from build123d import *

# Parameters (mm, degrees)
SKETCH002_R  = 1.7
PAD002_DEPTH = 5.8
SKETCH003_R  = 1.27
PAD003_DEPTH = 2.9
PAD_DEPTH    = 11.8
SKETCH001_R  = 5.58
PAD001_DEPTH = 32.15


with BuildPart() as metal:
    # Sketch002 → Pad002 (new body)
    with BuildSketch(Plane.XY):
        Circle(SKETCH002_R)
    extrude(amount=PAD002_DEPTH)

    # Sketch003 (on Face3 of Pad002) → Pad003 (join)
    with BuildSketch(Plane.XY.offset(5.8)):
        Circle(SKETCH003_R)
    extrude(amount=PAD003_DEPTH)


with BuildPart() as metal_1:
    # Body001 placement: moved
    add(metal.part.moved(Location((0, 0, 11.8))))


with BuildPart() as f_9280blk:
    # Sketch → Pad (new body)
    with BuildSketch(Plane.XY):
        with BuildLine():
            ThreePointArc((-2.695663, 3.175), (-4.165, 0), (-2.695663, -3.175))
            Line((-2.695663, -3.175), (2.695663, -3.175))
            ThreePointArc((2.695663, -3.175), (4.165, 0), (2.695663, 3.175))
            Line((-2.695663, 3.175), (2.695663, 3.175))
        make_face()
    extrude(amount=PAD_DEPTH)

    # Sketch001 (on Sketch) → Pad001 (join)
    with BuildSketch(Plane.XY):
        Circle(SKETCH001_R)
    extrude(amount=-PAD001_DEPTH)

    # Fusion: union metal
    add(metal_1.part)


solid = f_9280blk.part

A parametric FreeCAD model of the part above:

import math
import FreeCAD as App
import Part
import Sketcher

V = App.Vector

doc = App.newDocument("Part")
params = doc.addObject("Spreadsheet::Sheet", "Params")
for row, (alias, value) in enumerate([
    ("sketch1_diameter", "3.4 mm"),
    ("pad1_length", "5.8 mm"),
    ("sketch2_diameter", "2.54 mm"),
    ("pad2_length", "2.9 mm"),
    ("pad3_length", "11.8 mm"),
    ("sketch4_diameter", "11.16 mm"),
    ("pad4_length", "32.15 mm"),
], start=1):
    params.set(f"A{row}", alias)
    params.set(f"B{row}", "=" + value)
    params.setAlias(f"B{row}", alias)

body = doc.addObject("PartDesign::Body", "Body")

# Sketch on XY plane
sketch1 = doc.addObject("Sketcher::SketchObject", "Sketch")
body.addObject(sketch1)
sketch1.AttachmentSupport = (doc.XY_Plane, [""])
sketch1.MapMode = "FlatFace"
sketch1.addGeometry(Part.Circle(V(0, 0, 0), V(0, 0, 1), 1.7), False)
sketch1.addConstraint([
    Sketcher.Constraint("Coincident", 0, 3, -1, 1),
    Sketcher.Constraint("Diameter", 0, 3.4),
])
sketch1.setExpression("Constraints[1]", "Params.sketch1_diameter")
pad1 = doc.addObject("PartDesign::Pad", "Pad")
body.addObject(pad1)
pad1.Profile = sketch1
pad1.setExpression("Length", "Params.pad1_length")

# Sketch on XY plane
sketch2 = doc.addObject("Sketcher::SketchObject", "Sketch001")
body.addObject(sketch2)
sketch2.AttachmentSupport = (doc.XY_Plane, [""])
sketch2.MapMode = "FlatFace"
sketch2.AttachmentOffset = App.Placement(V(0, 0, 5.8), App.Rotation())
sketch2.addGeometry(Part.Circle(V(0, 0, 0), V(0, 0, 1), 1.3), False)
sketch2.addConstraint([
    Sketcher.Constraint("Coincident", 0, 3, -1, 1),
    Sketcher.Constraint("Diameter", 0, 2.54),
])
sketch2.setExpression("Constraints[1]", "Params.sketch2_diameter")
pad2 = doc.addObject("PartDesign::Pad", "Pad001")
body.addObject(pad2)
pad2.Profile = sketch2
pad2.setExpression("Length", "Params.pad2_length")
body2 = doc.addObject("PartDesign::Body", "Body001")
doc.recompute()

body.Placement = App.Placement(V(0, 0, 11.8), App.Rotation(V(0, 0, 1), 0))
boolean = doc.addObject("PartDesign::Boolean", "Boolean")
body2.addObject(boolean)
boolean.Type = "Fuse"
boolean.addObjects([body])
body3 = doc.addObject("PartDesign::Body", "Body002")

# Sketch on XY plane
sketch3 = doc.addObject("Sketcher::SketchObject", "Sketch002")
body3.addObject(sketch3)
sketch3.AttachmentSupport = (doc.getObject("XY_Plane002"), [""])
sketch3.MapMode = "FlatFace"
sketch3.addGeometry([
    Part.ArcOfCircle(Part.Circle(V(0, 0, 0), V(0, 0, 1), 4.2), math.radians(130), math.radians(230)),
    Part.LineSegment(V(-2.7, -3.2, 0), V(2.7, -3.2, 0)),
    Part.ArcOfCircle(Part.Circle(V(0, 0, 0), V(0, 0, 1), 4.2), math.radians(-50), math.radians(50)),
    Part.LineSegment(V(2.7, 3.2, 0), V(-2.7, 3.2, 0)),
], False)
sketch3.addConstraint([
    Sketcher.Constraint("Coincident", 0, 2, 1, 1),
    Sketcher.Constraint("Coincident", 1, 2, 2, 1),
    Sketcher.Constraint("Coincident", 2, 2, 3, 1),
    Sketcher.Constraint("Coincident", 3, 2, 0, 1),
    Sketcher.Constraint("Horizontal", 1),
    Sketcher.Constraint("Horizontal", 3),
    Sketcher.Constraint("Coincident", 0, 3, -1, 1),
    Sketcher.Constraint("Coincident", 2, 3, -1, 1),
    Sketcher.Constraint("Equal", 0, 2),
    Sketcher.Constraint("Vertical", 1, 2, 2, 2),
    Sketcher.Constraint("Radius", 0, 4.165),
    Sketcher.Constraint("DistanceY", 1, 2, 2, 2, 6.35),
])
pad3 = doc.addObject("PartDesign::Pad", "Pad002")
body3.addObject(pad3)
pad3.Profile = sketch3
pad3.setExpression("Length", "Params.pad3_length")

# Sketch on XY plane
sketch4 = doc.addObject("Sketcher::SketchObject", "Sketch003")
body3.addObject(sketch4)
sketch4.AttachmentSupport = (doc.getObject("XY_Plane002"), [""])
sketch4.MapMode = "FlatFace"
sketch4.addGeometry(Part.Circle(V(0, 0, 0), V(0, 0, 1), 6), False)
sketch4.addConstraint([
    Sketcher.Constraint("Coincident", 0, 3, -1, 1),
    Sketcher.Constraint("Diameter", 0, 11.16),
])
sketch4.setExpression("Constraints[1]", "Params.sketch4_diameter")
pad4 = doc.addObject("PartDesign::Pad", "Pad003")
body3.addObject(pad4)
pad4.Profile = sketch4
pad4.setExpression("Length", "Params.pad4_length")
pad4.Reversed = True
doc.recompute()

boolean2 = doc.addObject("PartDesign::Boolean", "Boolean001")
body3.addObject(boolean2)
boolean2.Type = "Fuse"
boolean2.addObjects([body2])

doc.recompute()
